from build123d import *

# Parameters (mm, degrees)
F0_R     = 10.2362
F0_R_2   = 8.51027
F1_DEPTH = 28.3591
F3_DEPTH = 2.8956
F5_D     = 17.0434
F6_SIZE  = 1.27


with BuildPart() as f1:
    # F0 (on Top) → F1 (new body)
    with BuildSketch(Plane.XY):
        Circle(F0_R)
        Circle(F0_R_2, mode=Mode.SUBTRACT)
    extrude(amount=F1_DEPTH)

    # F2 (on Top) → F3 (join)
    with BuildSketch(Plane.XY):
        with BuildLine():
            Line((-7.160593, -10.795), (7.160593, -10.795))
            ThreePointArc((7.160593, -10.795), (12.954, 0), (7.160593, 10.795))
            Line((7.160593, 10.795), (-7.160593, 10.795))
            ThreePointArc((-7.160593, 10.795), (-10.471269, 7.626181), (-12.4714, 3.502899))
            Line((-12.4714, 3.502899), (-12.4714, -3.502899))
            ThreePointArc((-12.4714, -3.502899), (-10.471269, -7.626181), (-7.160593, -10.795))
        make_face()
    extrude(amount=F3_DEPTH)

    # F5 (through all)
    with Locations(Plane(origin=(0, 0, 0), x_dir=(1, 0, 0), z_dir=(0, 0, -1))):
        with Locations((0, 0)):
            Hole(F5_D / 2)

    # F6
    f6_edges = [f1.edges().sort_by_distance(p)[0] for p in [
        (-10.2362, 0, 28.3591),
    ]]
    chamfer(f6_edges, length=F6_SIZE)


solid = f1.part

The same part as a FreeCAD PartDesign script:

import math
import FreeCAD as App
import Part
import Sketcher

V = App.Vector
Q = App.Units.Quantity


def edges_at(feature, points):
    """Names of the edges that pass closest to the given points."""
    edges = feature.Shape.Edges
    near = lambda p: min(range(len(edges)), key=lambda i: edges[i].distToShape(Part.Vertex(*p))[0])
    return sorted({f"Edge{near(p) + 1}" for p in points})

doc = App.newDocument("Part")
params = doc.addObject("Spreadsheet::Sheet", "Params")
for row, (alias, value) in enumerate([
    ("sketch1_diameter", "0.806 in"),
    ("pad1_length", "1.1165 in"),
    ("sketch2_radius", "0.51 in"),
    ("pad2_length", "0.114 in"),
    ("sketch3_diameter", "0.671 in"),
    ("hole_diameter", "0.671 in"),
    ("chamfer_size", "0.05 in"),
], start=1):
    params.set(f"A{row}", alias)
    params.set(f"B{row}", "=" + value)
    params.setAlias(f"B{row}", alias)

body = doc.addObject("PartDesign::Body", "Body")

# Sketch on XY plane
sketch1 = doc.addObject("Sketcher::SketchObject", "Sketch")
body.addObject(sketch1)
sketch1.AttachmentSupport = (doc.XY_Plane, [""])
sketch1.MapMode = "FlatFace"
sketch1.addGeometry([
    Part.Circle(V(0, 0, 0), V(0, 0, 1), 10.2362),
    Part.Circle(V(0, 0, 0), V(0, 0, 1), 8.51027),
], False)
sketch1.addConstraint([
    Sketcher.Constraint("Coincident", 0, 3, -1, 1),
    Sketcher.Constraint("Coincident", 1, 3, -1, 1),
    Sketcher.Constraint("Diameter", 0, Q("0.806 in")),
    Sketcher.Constraint("Diameter", 1, Q("0.6701 in")),
])
sketch1.setExpression("Constraints[2]", "Params.sketch1_diameter")
pad1 = doc.addObject("PartDesign::Pad", "Pad")
body.addObject(pad1)
pad1.Profile = sketch1
pad1.setExpression("Length", "Params.pad1_length")

# Sketch on XY plane
sketch2 = doc.addObject("Sketcher::SketchObject", "Sketch001")
body.addObject(sketch2)
sketch2.AttachmentSupport = (doc.XY_Plane, [""])
sketch2.MapMode = "FlatFace"
sketch2.addGeometry([
    Part.LineSegment(V(-7.160593, -10.795, 0), V(7.160593, -10.795, 0)),  # 0
    Part.ArcOfCircle(Part.Circle(V(0, 0, 0), V(0, 0, 1), 12.954), math.radians(-56.44269), math.radians(56.44269)),  # 1
    Part.LineSegment(V(7.160593, 10.795, 0), V(-7.160593, 10.795, 0)),  # 2
    Part.ArcOfCircle(Part.Circle(V(0.000003, -0.000003, 0), V(0, 0, 1), 12.954004), math.radians(123.557316), math.radians(164.311291)),  # 3
    Part.LineSegment(V(-12.4714, 3.502899, 0), V(-12.4714, -3.502899, 0)),  # 4
    Part.ArcOfCircle(Part.Circle(V(0.000003, 0.000003, 0), V(0, 0, 1), 12.954004), math.radians(-164.311291), math.radians(-123.557316)),  # 5
], False)
sketch2.addConstraint([
    Sketcher.Constraint("Coincident", 0, 2, 1, 1),
    Sketcher.Constraint("Coincident", 1, 2, 2, 1),
    Sketcher.Constraint("Coincident", 2, 2, 3, 1),
    Sketcher.Constraint("Coincident", 3, 2, 4, 1),
    Sketcher.Constraint("Coincident", 4, 2, 5, 1),
    Sketcher.Constraint("Coincident", 5, 2, 0, 1),
    Sketcher.Constraint("Horizontal", 0),
    Sketcher.Constraint("Horizontal", 2),
    Sketcher.Constraint("Vertical", 4),
    Sketcher.Constraint("Coincident", 1, 3, -1, 1),
    Sketcher.Constraint("Coincident", 3, 3, -1, 1),
    Sketcher.Constraint("Coincident", 5, 3, -1, 1),
    Sketcher.Constraint("Equal", 3, 5),
    Sketcher.Constraint("Symmetric", 0, 2, 2, 2, -1, 1),
    Sketcher.Constraint("Radius", 1, Q("0.51 in")),
    Sketcher.Constraint("DistanceY", 0, 2, 1, 2, Q("0.85 in")),
    Sketcher.Constraint("DistanceX", 3, 2, -1, 1, Q("0.491 in")),
])
sketch2.setExpression("Constraints[14]", "Params.sketch2_radius")
pad2 = doc.addObject("PartDesign::Pad", "Pad001")
body.addObject(pad2)
pad2.Profile = sketch2
pad2.setExpression("Length", "Params.pad2_length")

# Sketch on XY plane
sketch3 = doc.addObject("Sketcher::SketchObject", "Sketch002")
body.addObject(sketch3)
sketch3.AttachmentSupport = (doc.XY_Plane, [""])
sketch3.MapMode = "FlatFace"
sketch3.addGeometry(Part.Circle(V(0, 0, 0), V(0, 0, 1), 8.5217), False)
sketch3.addConstraint([
    Sketcher.Constraint("Coincident", 0, 3, -1, 1),
    Sketcher.Constraint("Diameter", 0, Q("0.671 in")),
])
sketch3.setExpression("Constraints[1]", "Params.sketch3_diameter")
doc.recompute()
hole = doc.addObject("PartDesign::Hole", "Hole")
body.addObject(hole)
hole.Profile = sketch3
hole.ThreadType = "None"
hole.setExpression("Diameter", "Params.hole_diameter")
hole.DepthType = "ThroughAll"
hole.Reversed = True
doc.recompute()

chamfer = doc.addObject("PartDesign::Chamfer", "Chamfer")
body.addObject(chamfer)
chamfer.Base = (hole, edges_at(hole, [(-10.236, 0, 28.359)]))
chamfer.setExpression("Size", "Params.chamfer_size")

doc.recompute()
